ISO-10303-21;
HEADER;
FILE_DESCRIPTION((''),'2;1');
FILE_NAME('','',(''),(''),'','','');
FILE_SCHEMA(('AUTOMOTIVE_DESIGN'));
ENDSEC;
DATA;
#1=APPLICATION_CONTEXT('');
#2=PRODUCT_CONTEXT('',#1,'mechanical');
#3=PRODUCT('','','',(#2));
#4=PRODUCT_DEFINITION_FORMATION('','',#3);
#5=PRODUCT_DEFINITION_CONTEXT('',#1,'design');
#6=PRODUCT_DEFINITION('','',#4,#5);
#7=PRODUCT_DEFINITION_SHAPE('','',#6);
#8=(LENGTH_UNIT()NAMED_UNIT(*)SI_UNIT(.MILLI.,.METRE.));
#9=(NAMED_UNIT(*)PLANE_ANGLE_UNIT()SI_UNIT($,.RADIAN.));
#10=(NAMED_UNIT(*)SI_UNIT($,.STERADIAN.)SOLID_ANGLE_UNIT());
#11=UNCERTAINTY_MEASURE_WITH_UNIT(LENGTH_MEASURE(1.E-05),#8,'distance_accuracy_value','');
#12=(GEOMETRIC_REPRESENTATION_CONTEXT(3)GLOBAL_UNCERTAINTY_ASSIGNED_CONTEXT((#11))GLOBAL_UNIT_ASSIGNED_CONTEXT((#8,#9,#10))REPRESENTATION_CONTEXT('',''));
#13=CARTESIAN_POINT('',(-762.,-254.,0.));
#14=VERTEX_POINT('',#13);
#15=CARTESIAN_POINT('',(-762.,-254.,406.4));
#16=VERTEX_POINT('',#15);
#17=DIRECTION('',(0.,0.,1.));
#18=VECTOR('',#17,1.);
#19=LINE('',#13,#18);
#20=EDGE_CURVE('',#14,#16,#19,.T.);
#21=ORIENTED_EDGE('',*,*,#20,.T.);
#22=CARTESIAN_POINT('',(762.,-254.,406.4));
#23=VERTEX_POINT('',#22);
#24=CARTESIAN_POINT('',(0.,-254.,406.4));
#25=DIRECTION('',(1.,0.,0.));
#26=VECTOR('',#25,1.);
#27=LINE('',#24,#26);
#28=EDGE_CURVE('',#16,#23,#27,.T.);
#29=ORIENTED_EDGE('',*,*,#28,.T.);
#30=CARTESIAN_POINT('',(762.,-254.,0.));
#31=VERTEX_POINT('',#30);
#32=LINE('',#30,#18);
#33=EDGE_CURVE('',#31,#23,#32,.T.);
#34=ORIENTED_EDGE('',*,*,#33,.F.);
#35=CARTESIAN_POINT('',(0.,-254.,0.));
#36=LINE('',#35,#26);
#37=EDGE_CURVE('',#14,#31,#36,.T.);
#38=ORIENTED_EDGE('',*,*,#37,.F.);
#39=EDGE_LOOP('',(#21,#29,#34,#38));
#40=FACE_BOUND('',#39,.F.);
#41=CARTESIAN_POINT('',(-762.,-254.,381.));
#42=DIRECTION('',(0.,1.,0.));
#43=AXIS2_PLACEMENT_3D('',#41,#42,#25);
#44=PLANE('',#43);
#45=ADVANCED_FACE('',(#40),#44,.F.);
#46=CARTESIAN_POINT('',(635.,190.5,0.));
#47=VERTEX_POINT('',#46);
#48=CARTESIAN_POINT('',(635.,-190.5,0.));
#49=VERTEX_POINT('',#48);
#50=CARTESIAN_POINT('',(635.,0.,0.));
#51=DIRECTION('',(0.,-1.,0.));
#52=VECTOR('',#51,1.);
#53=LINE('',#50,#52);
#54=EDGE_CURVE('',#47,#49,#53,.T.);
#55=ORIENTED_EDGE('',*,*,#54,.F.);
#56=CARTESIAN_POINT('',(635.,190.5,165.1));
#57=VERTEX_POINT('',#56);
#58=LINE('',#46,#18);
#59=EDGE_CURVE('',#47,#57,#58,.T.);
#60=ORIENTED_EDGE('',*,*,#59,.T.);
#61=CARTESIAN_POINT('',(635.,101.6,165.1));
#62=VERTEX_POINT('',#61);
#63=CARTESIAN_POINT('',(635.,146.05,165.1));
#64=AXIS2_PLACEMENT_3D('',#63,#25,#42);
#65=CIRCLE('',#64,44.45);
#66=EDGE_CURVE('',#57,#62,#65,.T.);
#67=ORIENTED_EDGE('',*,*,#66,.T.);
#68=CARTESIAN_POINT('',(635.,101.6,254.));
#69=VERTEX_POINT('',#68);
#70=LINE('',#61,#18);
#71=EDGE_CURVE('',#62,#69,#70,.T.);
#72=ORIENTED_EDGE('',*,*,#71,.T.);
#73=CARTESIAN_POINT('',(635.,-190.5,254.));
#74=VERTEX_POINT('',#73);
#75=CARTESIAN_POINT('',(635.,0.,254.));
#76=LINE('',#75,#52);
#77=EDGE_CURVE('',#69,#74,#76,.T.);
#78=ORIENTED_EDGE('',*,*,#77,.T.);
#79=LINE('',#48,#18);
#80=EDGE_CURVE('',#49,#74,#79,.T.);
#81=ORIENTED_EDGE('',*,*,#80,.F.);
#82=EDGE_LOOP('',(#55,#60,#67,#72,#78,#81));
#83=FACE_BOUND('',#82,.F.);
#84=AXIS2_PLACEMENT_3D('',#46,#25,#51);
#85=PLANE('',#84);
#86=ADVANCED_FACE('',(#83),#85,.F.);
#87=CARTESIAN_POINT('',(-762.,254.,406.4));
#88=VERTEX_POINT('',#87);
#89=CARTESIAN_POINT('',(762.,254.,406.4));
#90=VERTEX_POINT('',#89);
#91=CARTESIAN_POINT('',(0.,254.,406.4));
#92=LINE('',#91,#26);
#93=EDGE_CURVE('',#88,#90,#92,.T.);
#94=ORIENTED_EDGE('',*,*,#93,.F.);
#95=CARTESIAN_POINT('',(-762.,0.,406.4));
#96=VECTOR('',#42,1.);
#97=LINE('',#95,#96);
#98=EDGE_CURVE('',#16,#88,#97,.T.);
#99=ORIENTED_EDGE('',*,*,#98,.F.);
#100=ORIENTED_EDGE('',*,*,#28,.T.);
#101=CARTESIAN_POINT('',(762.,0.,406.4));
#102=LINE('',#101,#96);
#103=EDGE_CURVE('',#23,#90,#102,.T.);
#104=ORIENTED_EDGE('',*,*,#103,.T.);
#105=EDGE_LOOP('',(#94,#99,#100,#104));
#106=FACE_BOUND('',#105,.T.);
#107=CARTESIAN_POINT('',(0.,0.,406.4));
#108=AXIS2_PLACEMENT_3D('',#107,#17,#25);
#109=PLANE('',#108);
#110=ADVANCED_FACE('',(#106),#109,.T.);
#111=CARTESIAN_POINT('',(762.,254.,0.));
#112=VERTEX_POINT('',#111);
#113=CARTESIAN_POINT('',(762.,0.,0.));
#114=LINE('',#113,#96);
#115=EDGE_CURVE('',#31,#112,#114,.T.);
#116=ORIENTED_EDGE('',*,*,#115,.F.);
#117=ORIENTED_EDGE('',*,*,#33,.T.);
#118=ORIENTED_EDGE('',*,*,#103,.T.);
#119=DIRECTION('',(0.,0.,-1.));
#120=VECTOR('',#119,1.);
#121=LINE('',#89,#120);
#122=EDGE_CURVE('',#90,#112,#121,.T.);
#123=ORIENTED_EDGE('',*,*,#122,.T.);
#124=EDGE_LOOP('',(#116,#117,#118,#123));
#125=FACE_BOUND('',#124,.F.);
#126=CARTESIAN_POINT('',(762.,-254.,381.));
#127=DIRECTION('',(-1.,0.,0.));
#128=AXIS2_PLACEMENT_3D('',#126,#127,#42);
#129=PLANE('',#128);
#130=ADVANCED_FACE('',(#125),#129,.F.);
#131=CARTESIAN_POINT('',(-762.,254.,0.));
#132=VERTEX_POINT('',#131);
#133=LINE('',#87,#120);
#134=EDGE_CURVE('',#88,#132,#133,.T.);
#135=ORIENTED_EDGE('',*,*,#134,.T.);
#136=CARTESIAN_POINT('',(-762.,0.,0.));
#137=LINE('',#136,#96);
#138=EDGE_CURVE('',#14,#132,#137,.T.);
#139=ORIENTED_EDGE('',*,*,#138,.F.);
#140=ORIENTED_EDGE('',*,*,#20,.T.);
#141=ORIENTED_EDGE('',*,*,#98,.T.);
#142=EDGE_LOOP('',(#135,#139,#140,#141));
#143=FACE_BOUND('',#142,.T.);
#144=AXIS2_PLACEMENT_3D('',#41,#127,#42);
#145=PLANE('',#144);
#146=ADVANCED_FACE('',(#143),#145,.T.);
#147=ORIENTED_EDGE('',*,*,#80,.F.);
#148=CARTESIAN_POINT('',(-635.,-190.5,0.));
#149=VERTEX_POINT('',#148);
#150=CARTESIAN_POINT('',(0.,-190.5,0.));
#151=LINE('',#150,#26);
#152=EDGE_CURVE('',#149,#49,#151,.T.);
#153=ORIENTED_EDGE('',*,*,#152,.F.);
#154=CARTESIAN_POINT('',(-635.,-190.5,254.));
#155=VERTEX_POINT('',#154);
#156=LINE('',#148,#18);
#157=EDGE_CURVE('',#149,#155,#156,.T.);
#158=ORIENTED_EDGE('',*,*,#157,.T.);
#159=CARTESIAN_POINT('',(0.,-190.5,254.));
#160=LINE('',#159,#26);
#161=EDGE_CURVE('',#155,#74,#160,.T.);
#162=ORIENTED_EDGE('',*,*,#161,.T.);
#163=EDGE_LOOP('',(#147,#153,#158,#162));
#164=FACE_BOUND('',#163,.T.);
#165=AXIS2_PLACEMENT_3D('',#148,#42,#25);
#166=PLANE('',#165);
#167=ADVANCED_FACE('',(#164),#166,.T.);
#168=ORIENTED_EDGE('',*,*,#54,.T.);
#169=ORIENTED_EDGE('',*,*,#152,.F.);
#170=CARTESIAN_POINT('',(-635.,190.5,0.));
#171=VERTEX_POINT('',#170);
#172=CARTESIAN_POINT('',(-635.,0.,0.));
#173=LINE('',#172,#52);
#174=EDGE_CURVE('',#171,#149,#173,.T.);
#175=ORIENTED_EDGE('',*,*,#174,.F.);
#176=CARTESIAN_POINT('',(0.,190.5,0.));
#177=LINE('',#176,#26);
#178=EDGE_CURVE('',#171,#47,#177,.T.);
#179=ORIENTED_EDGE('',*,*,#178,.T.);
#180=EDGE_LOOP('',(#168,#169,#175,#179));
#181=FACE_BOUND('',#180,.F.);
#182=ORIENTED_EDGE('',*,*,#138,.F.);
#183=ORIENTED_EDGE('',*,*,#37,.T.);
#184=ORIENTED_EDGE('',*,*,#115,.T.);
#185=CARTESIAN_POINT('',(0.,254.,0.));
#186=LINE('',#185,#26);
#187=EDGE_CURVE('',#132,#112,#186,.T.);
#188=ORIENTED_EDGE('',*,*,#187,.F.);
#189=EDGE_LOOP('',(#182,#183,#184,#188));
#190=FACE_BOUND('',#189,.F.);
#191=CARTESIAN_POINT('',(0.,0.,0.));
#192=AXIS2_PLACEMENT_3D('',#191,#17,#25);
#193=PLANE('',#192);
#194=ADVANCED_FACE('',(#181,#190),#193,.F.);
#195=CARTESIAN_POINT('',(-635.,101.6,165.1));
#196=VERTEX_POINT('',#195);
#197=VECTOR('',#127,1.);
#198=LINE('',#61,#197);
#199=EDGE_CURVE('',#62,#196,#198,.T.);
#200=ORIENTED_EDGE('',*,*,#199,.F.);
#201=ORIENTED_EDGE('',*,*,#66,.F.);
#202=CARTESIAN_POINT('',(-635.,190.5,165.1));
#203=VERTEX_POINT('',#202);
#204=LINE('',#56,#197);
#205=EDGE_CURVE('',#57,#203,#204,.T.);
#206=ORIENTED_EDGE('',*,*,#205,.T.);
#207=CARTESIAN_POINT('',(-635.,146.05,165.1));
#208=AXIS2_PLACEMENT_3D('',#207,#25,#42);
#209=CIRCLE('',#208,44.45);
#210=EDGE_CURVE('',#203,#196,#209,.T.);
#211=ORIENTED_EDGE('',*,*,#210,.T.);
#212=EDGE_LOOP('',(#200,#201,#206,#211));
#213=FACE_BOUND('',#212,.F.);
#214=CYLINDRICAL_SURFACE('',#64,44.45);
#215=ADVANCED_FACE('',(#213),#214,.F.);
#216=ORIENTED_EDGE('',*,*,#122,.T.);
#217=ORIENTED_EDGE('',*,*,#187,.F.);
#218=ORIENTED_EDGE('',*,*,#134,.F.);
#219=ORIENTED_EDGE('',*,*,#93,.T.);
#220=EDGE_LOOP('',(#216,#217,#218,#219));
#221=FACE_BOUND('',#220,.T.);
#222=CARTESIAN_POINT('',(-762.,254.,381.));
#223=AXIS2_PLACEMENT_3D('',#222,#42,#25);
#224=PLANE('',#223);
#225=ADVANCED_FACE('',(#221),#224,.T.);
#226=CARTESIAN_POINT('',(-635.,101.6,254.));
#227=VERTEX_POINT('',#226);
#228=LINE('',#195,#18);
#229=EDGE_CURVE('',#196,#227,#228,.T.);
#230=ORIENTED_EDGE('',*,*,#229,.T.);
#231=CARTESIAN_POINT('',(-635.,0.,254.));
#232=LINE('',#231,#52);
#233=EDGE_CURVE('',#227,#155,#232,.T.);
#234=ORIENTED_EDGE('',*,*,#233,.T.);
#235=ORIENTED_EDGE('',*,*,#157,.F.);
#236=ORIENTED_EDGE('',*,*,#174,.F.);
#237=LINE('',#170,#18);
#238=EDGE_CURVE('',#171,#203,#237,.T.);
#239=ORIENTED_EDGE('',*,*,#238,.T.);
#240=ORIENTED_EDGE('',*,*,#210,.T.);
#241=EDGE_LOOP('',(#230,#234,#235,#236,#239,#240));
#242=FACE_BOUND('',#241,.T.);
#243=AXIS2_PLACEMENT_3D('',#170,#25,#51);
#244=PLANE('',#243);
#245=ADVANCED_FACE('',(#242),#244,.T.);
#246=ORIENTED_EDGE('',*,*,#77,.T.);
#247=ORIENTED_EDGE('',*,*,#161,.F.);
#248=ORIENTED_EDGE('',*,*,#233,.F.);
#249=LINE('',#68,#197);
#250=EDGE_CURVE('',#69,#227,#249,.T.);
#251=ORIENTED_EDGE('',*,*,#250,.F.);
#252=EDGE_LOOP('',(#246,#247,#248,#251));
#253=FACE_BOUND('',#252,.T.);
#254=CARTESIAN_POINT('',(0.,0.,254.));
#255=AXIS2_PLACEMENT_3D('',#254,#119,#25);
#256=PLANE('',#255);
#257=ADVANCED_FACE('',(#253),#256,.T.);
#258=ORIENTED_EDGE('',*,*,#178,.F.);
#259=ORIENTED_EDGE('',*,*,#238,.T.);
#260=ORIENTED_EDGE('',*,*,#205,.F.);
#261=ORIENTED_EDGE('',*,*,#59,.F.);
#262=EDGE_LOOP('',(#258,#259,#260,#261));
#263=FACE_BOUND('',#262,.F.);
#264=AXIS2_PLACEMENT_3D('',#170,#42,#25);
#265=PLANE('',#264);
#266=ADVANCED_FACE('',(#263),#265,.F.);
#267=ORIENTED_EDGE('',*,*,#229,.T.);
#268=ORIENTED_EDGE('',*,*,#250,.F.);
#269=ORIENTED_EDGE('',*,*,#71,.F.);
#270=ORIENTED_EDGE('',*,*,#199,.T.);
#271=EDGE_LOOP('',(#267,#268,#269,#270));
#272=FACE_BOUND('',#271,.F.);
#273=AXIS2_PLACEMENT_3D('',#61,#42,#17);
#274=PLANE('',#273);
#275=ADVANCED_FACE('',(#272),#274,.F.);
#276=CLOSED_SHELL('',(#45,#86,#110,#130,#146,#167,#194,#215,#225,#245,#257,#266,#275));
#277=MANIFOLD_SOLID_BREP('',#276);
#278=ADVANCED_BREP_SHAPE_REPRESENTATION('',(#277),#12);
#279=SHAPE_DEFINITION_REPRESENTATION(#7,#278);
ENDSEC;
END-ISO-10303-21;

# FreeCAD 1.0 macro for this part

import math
import FreeCAD as App
import Part
import Sketcher

V = App.Vector
Q = App.Units.Quantity


def add_polygon(sketch, points):
    """Adds a closed chain of lines whose ends are joined by coincident constraints."""
    first, n = sketch.GeometryCount, len(points)
    for a, b in zip(points, points[1:] + points[:1]):
        sketch.addGeometry(Part.LineSegment(App.Vector(*a, 0), App.Vector(*b, 0)), False)
    for i in range(n):
        sketch.addConstraint(Sketcher.Constraint("Coincident", first + i, 2, first + (i + 1) % n, 1))

doc = App.newDocument("Part")
body = doc.addObject("PartDesign::Body", "Body")

# Sketch on XY plane
sketch1 = body.newObject("Sketcher::SketchObject", "Sketch")
sketch1.AttachmentSupport = (doc.getObject("XY_Plane"), [""])
sketch1.MapMode = "FlatFace"
add_polygon(sketch1, [(-762, 254), (-762, -254), (762, -254), (762, 254)])  # lines 0-3
sketch1.addConstraint([
    Sketcher.Constraint("Vertical", 0),
    Sketcher.Constraint("Horizontal", 1),
    Sketcher.Constraint("Vertical", 2),
    Sketcher.Constraint("Horizontal", 3),
    Sketcher.Constraint("Symmetric", 0, 2, 2, 2, -1, 1),
    Sketcher.Constraint("DistanceX", 1, 1, 1, 2, Q("60 in")),
    Sketcher.Constraint("DistanceY", 0, 2, 0, 1, Q("20 in")),
])
pad1 = body.newObject("PartDesign::Pad", "Pad")
pad1.Profile = sketch1
pad1.Length = Q("15 in")

# Sketch on XY plane
sketch2 = body.newObject("Sketcher::SketchObject", "Sketch001")
sketch2.AttachmentSupport = (doc.getObject("XY_Plane"), [""])
sketch2.MapMode = "FlatFace"
add_polygon(sketch2, [(-635, -190.5), (-635, 190.5), (635, 190.5), (635, -190.5)])  # lines 0-3
sketch2.addConstraint([
    Sketcher.Constraint("Vertical", 0),
    Sketcher.Constraint("Horizontal", 1),
    Sketcher.Constraint("Vertical", 2),
    Sketcher.Constraint("Horizontal", 3),
    Sketcher.Constraint("Symmetric", 0, 2, 2, 2, -1, 1),
    Sketcher.Constraint("DistanceX", 1, 1, 1, 2, Q("50 in")),
    Sketcher.Constraint("DistanceY", 0, 1, 0, 2, Q("15 in")),
])
pocket1 = body.newObject("PartDesign::Pocket", "Pocket")
pocket1.Profile = sketch2
pocket1.Length = Q("10 in")
pocket1.Reversed = True

# Sketch on YZ plane
sketch3 = body.newObject("Sketcher::SketchObject", "Sketch002")
sketch3.AttachmentSupport = (doc.getObject("YZ_Plane"), [""])
sketch3.MapMode = "FlatFace"
sketch3.AttachmentOffset = App.Placement(V(0, 0, 25 * 25.4), App.Rotation())
sketch3.addGeometry([
    Part.LineSegment(V(101.6, 254, 0), V(190.5, 254, 0)),
    Part.LineSegment(V(190.5, 254, 0), V(190.5, 165.1, 0)),
    Part.ArcOfCircle(Part.Circle(V(146.05, 165.1, 0), V(0, 0, 1), 44.45), math.radians(0), math.radians(180)),
    Part.LineSegment(V(101.6, 165.1, 0), V(101.6, 254, 0)),
], False)
sketch3.addConstraint([
    Sketcher.Constraint("Coincident", 0, 2, 1, 1),
    Sketcher.Constraint("Tangent", 1, 2, 2, 1),
    Sketcher.Constraint("Tangent", 2, 2, 3, 1),
    Sketcher.Constraint("Coincident", 3, 2, 0, 1),
    Sketcher.Constraint("Horizontal", 0),
    Sketcher.Constraint("Vertical", 1),
    Sketcher.Constraint("Vertical", 3),
    Sketcher.Constraint("Equal", 0, 1),
    Sketcher.Constraint("Radius", 2, Q("1.75 in")),
    Sketcher.Constraint("DistanceY", -1, 1, 0, 2, Q("10 in")),
    Sketcher.Constraint("DistanceX", -1, 1, 2, 2, Q("4 in")),
])
pad2 = body.newObject("PartDesign::Pad", "Pad001")
pad2.Profile = sketch3
pad2.Type = "UpToLast"
pad2.Reversed = True

# Sketch on XY plane
sketch4 = body.newObject("Sketcher::SketchObject", "Sketch003")
sketch4.AttachmentSupport = (doc.getObject("XY_Plane"), [""])
sketch4.MapMode = "FlatFace"
sketch4.AttachmentOffset = App.Placement(V(0, 0, 15 * 25.4), App.Rotation())
add_polygon(sketch4, [(-762, 254), (-762, -254), (762, -254), (762, 254)])  # lines 0-3
sketch4.addConstraint([
    Sketcher.Constraint("Vertical", 0),
    Sketcher.Constraint("Horizontal", 1),
    Sketcher.Constraint("Vertical", 2),
    Sketcher.Constraint("Horizontal", 3),
    Sketcher.Constraint("Symmetric", 0, 2, 2, 2, -1, 1),
    Sketcher.Constraint("DistanceX", 1, 1, 1, 2, Q("60 in")),
    Sketcher.Constraint("DistanceY", 0, 2, 0, 1, Q("20 in")),
])
pad3 = body.newObject("PartDesign::Pad", "Pad002")
pad3.Profile = sketch4
pad3.Length = Q("1 in")

doc.recompute()
